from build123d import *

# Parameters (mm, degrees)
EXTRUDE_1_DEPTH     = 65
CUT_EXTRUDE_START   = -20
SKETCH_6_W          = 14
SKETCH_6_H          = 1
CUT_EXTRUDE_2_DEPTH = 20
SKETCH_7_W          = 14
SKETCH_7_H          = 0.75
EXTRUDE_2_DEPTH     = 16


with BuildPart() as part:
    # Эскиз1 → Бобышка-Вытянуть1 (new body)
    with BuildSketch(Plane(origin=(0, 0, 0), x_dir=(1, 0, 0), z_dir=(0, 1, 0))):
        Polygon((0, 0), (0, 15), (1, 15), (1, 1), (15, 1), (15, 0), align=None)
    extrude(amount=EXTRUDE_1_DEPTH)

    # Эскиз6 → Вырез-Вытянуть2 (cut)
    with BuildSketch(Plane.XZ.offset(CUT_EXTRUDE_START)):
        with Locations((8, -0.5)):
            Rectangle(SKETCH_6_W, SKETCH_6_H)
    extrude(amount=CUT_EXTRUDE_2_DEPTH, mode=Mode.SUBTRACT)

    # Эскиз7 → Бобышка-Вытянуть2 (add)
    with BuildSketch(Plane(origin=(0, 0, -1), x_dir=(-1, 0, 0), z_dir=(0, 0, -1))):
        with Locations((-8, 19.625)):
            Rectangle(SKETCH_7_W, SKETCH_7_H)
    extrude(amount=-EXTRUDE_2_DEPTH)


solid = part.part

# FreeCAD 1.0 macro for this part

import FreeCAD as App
import Part
import Sketcher

V = App.Vector
Q = App.Units.Quantity


def add_polygon(sketch, points):
    """Adds a closed chain of lines whose ends are joined by coincident constraints."""
    first, n = sketch.GeometryCount, len(points)
    for a, b in zip(points, points[1:] + points[:1]):
        sketch.addGeometry(Part.LineSegment(App.Vector(*a, 0), App.Vector(*b, 0)), False)
    for i in range(n):
        sketch.addConstraint(Sketcher.Constraint("Coincident", first + i, 2, first + (i + 1) % n, 1))

doc = App.newDocument("Part")
params = doc.addObject("Spreadsheet::Sheet", "Params")
for row, (alias, value) in enumerate([
    ("sketch1_width", "15 mm"),
    ("sketch1_width2", "14 mm"),
    ("pad1_length", "65 mm"),
    ("sketch2_width", "14 mm"),
    ("sketch2_height", "1 mm"),
    ("pocket1_length", "20 mm"),
    ("sketch3_width", "14 mm"),
    ("sketch3_height", "0.75 mm"),
    ("pad2_length", "16 mm"),
], start=1):
    params.set(f"A{row}", alias)
    params.set(f"B{row}", "=" + value)
    params.setAlias(f"B{row}", alias)

body = doc.addObject("PartDesign::Body", "Body")

sketch1 = body.newObject("Sketcher::SketchObject", "Sketch")
sketch1.AttachmentSupport = (doc.getObject("XZ_Plane"), [""])
sketch1.MapMode = "FlatFace"
add_polygon(sketch1, [(0, -15), (0, 0), (15, 0), (15, -1), (1, -1), (1, -15)])
sketch1.addConstraint([
    Sketcher.Constraint("Vertical", 0),
    Sketcher.Constraint("Horizontal", 1),
    Sketcher.Constraint("Vertical", 2),
    Sketcher.Constraint("Horizontal", 3),
    Sketcher.Constraint("Vertical", 4),
    Sketcher.Constraint("Horizontal", 5),
    Sketcher.Constraint("Coincident", 0, 2, -1, 1),
    Sketcher.Constraint("Equal", 1, 0),
    Sketcher.Constraint("Equal", 5, 2),
    Sketcher.Constraint("DistanceX", 1, 1, 1, 2, Q("15 mm")),
    Sketcher.Constraint("DistanceX", 3, 2, 3, 1, Q("14 mm")),
])
sketch1.setExpression("Constraints[15]", "Params.sketch1_width")
sketch1.setExpression("Constraints[16]", "Params.sketch1_width2")
pad1 = body.newObject("PartDesign::Pad", "Pad")
pad1.Profile = sketch1
pad1.setExpression("Length", "Params.pad1_length")
pad1.Reversed = True

sketch2 = body.newObject("Sketcher::SketchObject", "Sketch001")
sketch2.AttachmentSupport = (doc.getObject("XZ_Plane"), [""])
sketch2.MapMode = "FlatFace"
sketch2.AttachmentOffset = App.Placement(V(0, 0, -20), App.Rotation())
add_polygon(sketch2, [(1, 0), (1, -1), (15, -1), (15, 0)])
sketch2.addConstraint([
    Sketcher.Constraint("Vertical", 0),
    Sketcher.Constraint("Horizontal", 1),
    Sketcher.Constraint("Vertical", 2),
    Sketcher.Constraint("Horizontal", 3),
    Sketcher.Constraint("PointOnObject", 2, 2, -1),
    Sketcher.Constraint("DistanceX", 1, 1, 1, 2, Q("14 mm")),
    Sketcher.Constraint("DistanceY", 0, 2, 0, 1, Q("1 mm")),
    Sketcher.Constraint("DistanceX", -1, 1, 0, 2, Q("1 mm")),
])
sketch2.setExpression("Constraints[9]", "Params.sketch2_width")
sketch2.setExpression("Constraints[10]", "Params.sketch2_height")
pocket1 = body.newObject("PartDesign::Pocket", "Pocket")
pocket1.Profile = sketch2
pocket1.setExpression("Length", "Params.pocket1_length")
pocket1.Reversed = True

sketch3 = body.newObject("Sketcher::SketchObject", "Sketch002")
sketch3.AttachmentSupport = (doc.getObject("XY_Plane"), [""])
sketch3.MapMode = "FlatFace"
sketch3.AttachmentOffset = App.Placement(V(0, 0, -1), App.Rotation())
add_polygon(sketch3, [(15, 20), (15, 19.2), (1, 19.2), (1, 20)])
sketch3.addConstraint([
    Sketcher.Constraint("Vertical", 0),
    Sketcher.Constraint("Horizontal", 1),
    Sketcher.Constraint("Vertical", 2),
    Sketcher.Constraint("Horizontal", 3),
    Sketcher.Constraint("DistanceX", 1, 2, 1, 1, Q("14 mm")),
    Sketcher.Constraint("DistanceX", -1, 1, 0, 2, Q("15 mm")),
    Sketcher.Constraint("DistanceY", -1, 1, 2, 2, Q("20 mm")),
    Sketcher.Constraint("DistanceY", 0, 2, 0, 1, Q("0.75 mm")),
])
sketch3.setExpression("Constraints[8]", "Params.sketch3_width")
sketch3.setExpression("Constraints[11]", "Params.sketch3_height")
pad2 = body.newObject("PartDesign::Pad", "Pad001")
pad2.Profile = sketch3
pad2.setExpression("Length", "Params.pad2_length")

doc.recompute()
